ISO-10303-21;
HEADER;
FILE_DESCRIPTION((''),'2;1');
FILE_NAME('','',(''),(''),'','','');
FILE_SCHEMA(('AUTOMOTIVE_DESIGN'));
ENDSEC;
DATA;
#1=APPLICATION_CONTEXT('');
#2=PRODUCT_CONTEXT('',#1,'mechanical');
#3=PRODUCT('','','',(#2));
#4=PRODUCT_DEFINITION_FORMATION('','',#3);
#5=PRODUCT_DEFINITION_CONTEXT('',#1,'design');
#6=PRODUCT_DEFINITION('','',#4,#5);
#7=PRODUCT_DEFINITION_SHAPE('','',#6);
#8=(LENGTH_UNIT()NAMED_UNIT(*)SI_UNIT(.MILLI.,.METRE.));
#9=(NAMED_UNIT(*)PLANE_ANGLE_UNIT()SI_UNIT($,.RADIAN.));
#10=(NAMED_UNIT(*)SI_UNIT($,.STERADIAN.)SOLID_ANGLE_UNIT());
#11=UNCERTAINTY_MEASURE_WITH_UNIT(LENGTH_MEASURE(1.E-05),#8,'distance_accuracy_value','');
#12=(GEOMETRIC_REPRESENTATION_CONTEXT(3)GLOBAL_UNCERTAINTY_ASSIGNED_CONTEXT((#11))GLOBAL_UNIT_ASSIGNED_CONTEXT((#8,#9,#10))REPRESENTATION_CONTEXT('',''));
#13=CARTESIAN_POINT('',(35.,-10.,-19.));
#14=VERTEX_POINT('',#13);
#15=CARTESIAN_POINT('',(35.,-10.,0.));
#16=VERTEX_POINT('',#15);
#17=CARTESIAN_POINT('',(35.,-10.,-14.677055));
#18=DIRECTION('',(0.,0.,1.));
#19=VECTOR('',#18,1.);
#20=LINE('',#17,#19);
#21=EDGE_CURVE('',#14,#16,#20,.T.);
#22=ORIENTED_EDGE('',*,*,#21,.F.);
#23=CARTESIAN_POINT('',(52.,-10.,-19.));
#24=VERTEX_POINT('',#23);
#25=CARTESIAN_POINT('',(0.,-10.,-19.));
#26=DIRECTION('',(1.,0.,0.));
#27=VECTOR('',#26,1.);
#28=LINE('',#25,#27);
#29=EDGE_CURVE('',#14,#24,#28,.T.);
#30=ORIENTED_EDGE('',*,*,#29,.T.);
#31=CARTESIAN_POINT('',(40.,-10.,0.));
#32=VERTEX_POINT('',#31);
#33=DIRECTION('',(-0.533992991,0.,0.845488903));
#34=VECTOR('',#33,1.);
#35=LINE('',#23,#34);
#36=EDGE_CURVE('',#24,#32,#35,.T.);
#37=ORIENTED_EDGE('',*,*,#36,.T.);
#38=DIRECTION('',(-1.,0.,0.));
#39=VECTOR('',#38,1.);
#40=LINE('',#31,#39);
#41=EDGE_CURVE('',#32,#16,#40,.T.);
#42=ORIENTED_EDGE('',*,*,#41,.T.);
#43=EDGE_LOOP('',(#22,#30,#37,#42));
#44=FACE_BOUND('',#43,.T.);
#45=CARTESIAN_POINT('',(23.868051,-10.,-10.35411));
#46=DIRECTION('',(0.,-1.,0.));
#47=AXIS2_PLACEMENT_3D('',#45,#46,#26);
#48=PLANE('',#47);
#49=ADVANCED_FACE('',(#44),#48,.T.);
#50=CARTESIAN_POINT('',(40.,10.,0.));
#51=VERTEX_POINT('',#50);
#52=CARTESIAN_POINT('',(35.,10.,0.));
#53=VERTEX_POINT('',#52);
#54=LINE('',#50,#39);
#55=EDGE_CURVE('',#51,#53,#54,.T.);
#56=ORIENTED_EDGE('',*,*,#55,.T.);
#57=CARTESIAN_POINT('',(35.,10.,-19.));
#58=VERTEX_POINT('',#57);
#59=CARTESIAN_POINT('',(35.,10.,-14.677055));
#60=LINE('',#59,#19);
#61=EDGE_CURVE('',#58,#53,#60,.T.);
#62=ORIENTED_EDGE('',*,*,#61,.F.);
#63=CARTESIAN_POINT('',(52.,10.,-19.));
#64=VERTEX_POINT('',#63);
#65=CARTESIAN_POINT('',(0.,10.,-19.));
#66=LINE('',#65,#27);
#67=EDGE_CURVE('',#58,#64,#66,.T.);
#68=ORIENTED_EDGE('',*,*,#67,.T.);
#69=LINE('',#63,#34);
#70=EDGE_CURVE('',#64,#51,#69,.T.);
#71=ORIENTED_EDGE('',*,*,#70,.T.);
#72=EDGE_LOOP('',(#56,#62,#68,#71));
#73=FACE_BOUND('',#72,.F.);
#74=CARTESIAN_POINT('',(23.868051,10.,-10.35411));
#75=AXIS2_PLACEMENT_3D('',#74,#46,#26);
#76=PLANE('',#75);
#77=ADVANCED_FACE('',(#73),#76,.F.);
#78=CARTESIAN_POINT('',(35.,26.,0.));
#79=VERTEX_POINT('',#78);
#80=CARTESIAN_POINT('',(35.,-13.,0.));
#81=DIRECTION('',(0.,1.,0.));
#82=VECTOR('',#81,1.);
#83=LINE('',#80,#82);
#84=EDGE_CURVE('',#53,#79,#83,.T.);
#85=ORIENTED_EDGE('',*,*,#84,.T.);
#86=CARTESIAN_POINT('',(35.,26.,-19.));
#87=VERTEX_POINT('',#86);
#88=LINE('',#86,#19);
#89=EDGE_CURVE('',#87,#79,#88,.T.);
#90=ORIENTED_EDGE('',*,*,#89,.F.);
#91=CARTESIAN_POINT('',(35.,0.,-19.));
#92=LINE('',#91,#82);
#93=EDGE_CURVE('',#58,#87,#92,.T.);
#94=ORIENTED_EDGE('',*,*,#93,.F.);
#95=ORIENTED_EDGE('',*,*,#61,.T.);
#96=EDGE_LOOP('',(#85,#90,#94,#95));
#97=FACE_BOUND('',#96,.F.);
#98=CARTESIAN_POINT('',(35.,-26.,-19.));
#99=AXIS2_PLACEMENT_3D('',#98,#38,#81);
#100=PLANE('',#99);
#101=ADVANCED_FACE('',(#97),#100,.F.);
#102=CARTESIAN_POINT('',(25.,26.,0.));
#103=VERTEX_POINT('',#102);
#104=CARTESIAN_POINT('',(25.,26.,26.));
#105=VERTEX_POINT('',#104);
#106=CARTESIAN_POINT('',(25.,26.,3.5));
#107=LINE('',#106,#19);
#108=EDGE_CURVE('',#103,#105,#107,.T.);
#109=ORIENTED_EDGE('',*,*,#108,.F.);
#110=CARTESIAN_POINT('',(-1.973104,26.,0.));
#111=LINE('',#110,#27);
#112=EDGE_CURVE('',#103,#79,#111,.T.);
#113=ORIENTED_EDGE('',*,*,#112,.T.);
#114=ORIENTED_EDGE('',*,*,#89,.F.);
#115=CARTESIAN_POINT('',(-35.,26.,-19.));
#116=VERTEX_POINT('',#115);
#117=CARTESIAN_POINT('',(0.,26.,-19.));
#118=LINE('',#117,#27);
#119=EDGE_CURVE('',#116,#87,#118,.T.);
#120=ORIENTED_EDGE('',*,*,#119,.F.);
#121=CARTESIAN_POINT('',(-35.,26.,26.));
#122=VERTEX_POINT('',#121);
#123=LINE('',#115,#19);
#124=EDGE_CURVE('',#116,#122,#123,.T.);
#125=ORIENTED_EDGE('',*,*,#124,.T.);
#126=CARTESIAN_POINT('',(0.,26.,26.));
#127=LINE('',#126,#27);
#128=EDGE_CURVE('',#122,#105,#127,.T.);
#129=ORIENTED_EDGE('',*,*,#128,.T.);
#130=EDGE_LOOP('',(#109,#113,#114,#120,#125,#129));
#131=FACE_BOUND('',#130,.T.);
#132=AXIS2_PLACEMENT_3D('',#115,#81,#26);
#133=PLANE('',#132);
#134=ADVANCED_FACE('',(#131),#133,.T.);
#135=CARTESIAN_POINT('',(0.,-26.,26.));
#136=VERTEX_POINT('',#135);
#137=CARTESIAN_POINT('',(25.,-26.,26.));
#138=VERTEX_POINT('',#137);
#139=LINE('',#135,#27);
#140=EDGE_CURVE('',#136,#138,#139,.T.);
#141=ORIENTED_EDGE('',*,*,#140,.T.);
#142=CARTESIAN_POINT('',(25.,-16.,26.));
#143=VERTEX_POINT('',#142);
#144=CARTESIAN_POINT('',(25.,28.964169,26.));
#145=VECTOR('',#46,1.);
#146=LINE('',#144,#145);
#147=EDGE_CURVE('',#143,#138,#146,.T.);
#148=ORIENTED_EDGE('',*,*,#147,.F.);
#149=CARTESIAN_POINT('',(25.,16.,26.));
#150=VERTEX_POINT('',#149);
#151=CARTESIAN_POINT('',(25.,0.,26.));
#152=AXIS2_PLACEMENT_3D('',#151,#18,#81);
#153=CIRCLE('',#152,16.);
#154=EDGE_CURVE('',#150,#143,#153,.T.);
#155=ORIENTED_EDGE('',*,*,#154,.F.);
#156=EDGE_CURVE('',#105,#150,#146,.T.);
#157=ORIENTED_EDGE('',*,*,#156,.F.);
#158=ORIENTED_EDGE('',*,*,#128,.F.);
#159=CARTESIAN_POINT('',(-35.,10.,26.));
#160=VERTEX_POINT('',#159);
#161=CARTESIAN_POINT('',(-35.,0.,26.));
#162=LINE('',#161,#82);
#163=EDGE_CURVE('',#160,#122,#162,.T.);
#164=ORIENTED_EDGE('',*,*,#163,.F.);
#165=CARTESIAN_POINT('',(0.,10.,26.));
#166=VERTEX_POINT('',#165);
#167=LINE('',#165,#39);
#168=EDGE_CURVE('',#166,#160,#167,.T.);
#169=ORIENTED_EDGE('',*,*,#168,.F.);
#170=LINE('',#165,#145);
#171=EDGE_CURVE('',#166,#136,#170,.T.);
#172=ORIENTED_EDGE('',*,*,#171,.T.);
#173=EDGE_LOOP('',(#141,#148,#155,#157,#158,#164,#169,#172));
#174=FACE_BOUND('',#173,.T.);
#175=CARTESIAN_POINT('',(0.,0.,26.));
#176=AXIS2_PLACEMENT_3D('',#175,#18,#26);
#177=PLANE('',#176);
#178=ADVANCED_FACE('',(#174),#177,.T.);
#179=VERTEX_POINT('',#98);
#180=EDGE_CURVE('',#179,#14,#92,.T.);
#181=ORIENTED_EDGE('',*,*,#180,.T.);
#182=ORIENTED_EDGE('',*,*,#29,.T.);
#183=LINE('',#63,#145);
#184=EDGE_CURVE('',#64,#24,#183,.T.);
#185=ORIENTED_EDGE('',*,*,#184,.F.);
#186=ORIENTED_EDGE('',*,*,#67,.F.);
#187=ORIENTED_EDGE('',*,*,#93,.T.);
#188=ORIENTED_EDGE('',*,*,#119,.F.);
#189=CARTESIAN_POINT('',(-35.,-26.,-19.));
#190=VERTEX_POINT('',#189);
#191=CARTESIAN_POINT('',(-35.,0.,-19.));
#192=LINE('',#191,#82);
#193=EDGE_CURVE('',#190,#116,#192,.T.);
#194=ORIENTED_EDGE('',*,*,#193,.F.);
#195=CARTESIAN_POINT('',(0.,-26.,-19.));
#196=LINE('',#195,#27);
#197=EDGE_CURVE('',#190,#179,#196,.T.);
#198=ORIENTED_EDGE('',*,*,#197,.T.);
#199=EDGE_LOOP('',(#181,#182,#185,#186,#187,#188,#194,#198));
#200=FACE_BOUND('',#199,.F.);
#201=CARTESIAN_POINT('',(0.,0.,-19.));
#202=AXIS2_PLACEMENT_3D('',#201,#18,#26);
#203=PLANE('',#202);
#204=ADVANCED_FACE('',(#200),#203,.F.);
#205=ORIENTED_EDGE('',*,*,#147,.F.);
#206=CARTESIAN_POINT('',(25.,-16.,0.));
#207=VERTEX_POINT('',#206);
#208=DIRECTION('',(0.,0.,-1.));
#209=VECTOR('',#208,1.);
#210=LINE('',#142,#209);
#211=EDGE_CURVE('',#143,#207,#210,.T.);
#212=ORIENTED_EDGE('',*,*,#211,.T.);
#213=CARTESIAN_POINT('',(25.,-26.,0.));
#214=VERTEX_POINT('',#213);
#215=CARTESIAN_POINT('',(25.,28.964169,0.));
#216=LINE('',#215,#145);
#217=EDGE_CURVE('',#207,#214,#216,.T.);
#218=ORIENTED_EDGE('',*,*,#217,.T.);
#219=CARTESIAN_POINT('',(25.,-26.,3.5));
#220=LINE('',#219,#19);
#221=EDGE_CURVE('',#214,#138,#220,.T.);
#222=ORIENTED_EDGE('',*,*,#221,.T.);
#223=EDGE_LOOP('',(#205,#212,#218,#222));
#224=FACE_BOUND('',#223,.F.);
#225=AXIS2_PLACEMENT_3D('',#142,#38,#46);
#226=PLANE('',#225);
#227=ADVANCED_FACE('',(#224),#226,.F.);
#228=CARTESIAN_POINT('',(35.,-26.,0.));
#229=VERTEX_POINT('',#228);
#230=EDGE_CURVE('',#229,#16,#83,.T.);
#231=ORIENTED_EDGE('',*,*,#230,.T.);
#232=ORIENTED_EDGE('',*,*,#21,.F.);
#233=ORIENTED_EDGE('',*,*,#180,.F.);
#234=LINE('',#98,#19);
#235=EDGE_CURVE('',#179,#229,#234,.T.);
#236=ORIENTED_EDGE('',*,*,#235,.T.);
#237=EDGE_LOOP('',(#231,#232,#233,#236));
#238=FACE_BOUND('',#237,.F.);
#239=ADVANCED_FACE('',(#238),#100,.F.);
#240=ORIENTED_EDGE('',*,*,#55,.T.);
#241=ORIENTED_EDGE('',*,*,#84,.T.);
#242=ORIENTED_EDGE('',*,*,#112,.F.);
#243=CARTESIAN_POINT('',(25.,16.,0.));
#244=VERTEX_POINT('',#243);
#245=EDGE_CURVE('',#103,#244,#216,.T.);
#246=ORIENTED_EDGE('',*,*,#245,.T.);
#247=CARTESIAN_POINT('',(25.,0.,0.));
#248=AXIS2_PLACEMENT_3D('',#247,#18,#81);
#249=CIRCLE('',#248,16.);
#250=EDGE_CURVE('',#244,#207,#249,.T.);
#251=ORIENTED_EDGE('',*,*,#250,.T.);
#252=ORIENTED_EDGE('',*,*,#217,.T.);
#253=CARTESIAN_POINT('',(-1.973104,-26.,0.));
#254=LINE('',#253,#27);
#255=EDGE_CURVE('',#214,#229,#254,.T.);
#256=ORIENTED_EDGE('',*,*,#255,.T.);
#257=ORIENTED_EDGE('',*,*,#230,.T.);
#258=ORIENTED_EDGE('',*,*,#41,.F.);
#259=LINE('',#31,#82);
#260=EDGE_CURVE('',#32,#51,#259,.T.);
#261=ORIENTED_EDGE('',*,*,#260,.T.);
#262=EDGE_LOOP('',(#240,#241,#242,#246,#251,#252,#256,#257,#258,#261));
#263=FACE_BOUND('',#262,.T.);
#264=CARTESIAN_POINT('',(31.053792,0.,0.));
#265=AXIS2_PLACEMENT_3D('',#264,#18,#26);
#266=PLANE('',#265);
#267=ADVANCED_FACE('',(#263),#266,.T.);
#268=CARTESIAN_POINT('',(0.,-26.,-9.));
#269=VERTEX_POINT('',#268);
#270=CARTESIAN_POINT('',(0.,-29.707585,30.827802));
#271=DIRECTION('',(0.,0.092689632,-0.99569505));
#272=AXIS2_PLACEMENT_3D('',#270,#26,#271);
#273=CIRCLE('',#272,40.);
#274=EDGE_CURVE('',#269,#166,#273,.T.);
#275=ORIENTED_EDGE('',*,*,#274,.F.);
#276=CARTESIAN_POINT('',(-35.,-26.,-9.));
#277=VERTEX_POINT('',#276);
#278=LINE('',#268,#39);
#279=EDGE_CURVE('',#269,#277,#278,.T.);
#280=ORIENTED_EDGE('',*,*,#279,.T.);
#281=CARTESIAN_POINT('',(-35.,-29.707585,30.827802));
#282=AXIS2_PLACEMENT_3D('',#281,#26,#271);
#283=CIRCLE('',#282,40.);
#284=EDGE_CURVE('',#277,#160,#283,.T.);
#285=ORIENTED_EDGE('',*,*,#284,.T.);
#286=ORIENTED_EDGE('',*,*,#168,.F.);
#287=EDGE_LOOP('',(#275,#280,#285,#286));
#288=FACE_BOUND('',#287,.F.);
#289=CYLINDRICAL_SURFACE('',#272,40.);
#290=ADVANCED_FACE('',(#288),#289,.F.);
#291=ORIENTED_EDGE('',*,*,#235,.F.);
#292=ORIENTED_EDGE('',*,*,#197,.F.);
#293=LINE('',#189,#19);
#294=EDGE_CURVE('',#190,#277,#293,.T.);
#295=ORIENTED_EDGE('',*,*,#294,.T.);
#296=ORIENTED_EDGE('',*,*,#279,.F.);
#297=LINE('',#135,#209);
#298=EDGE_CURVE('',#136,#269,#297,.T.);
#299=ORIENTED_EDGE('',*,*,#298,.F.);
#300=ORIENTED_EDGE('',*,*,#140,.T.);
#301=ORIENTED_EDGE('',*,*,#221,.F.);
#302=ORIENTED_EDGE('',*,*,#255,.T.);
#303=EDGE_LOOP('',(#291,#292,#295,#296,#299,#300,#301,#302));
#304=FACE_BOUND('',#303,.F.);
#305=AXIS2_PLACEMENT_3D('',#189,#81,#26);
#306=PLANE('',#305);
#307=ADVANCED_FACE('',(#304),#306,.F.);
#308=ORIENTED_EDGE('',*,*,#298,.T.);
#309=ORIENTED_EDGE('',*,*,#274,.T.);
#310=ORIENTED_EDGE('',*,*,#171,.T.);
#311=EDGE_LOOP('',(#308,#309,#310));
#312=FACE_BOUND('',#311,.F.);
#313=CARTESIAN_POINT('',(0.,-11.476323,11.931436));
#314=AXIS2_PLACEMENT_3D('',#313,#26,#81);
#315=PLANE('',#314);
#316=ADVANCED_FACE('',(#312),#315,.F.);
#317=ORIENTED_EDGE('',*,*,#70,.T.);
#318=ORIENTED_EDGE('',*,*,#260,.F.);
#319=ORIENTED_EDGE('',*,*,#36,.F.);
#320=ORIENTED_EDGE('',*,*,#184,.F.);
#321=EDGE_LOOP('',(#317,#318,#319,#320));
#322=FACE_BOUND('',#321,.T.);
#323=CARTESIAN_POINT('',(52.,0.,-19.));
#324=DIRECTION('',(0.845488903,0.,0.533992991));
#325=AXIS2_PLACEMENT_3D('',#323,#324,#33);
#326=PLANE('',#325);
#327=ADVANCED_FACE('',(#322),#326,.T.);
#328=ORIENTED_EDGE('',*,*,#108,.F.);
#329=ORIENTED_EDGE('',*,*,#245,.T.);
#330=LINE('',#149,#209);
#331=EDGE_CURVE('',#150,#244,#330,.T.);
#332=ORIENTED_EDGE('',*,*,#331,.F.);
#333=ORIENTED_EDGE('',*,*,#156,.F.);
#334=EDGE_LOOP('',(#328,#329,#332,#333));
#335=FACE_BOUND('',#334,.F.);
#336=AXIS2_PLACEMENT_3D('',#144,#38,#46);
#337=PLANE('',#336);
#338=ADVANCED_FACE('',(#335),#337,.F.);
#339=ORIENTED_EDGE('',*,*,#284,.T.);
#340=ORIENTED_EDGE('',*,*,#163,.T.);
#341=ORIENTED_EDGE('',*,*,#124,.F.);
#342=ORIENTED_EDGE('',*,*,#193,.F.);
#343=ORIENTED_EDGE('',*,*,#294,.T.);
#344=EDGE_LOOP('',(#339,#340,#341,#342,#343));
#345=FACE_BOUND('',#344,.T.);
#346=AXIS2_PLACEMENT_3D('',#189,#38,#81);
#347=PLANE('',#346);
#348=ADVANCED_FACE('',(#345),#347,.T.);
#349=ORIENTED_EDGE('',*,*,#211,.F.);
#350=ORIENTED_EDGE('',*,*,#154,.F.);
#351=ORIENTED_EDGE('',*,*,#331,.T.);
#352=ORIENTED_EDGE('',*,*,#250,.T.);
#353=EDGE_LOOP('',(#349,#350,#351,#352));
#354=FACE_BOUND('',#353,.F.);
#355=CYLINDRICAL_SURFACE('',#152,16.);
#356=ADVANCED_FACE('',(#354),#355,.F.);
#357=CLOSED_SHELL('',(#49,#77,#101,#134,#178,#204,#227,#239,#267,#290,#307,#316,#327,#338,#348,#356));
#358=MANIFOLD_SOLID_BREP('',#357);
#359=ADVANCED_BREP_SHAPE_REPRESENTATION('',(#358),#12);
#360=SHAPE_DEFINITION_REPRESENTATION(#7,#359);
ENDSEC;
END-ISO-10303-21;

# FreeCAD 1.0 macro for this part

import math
import FreeCAD as App
import Part
import Sketcher
from FreeCAD import Vector


def add_polygon(sketch, points):
    """Adds a closed chain of lines whose ends are joined by coincident constraints."""
    first, n = sketch.GeometryCount, len(points)
    for a, b in zip(points, points[1:] + points[:1]):
        sketch.addGeometry(Part.LineSegment(App.Vector(*a, 0), App.Vector(*b, 0)), False)
    for i in range(n):
        sketch.addConstraint(Sketcher.Constraint("Coincident", first + i, 2, first + (i + 1) % n, 1))

doc = App.newDocument("Part")
body = doc.addObject("PartDesign::Body", "Body")

# Sketch on XY plane
sketch1 = doc.addObject("Sketcher::SketchObject", "Sketch")
body.addObject(sketch1)
sketch1.AttachmentSupport = (doc.XY_Plane, [""])
sketch1.MapMode = "FlatFace"
sketch1.AttachmentOffset = App.Placement(Vector(0, 0, -19), App.Rotation())
add_polygon(sketch1, [(-35, 26), (-35, -26), (35, -26), (35, 26)])  # lines 0-3
sketch1.addConstraint([
    Sketcher.Constraint("Vertical", 0),
    Sketcher.Constraint("Horizontal", 1),
    Sketcher.Constraint("Vertical", 2),
    Sketcher.Constraint("Horizontal", 3),
    Sketcher.Constraint("Symmetric", 0, 2, 2, 2, -1, 1),
    Sketcher.Constraint("DistanceX", 1, 1, 1, 2, 70.0),
    Sketcher.Constraint("DistanceY", 0, 2, 0, 1, 52.0),
])
pad1 = doc.addObject("PartDesign::Pad", "Pad")
body.addObject(pad1)
pad1.Profile = sketch1
pad1.Length = 45

# Sketch on XY plane
sketch2 = doc.addObject("Sketcher::SketchObject", "Sketch001")
body.addObject(sketch2)
sketch2.AttachmentSupport = (doc.XY_Plane, [""])
sketch2.MapMode = "FlatFace"
sketch2.AttachmentOffset = App.Placement(Vector(0, 0, 26), App.Rotation())
sketch2.addGeometry([
    Part.LineSegment(Vector(25, -30.279284, 0), Vector(53.918246, -30.279284, 0)),  # 0
    Part.LineSegment(Vector(53.918246, -30.279284, 0), Vector(53.918246, 29.17351, 0)),  # 1
    Part.LineSegment(Vector(53.918246, 29.17351, 0), Vector(25, 28.964169, 0)),  # 2
    Part.LineSegment(Vector(25, 28.964169, 0), Vector(25, 16, 0)),  # 3
    Part.ArcOfCircle(Part.Circle(Vector(25, 0, 0), Vector(0, 0, 1), 16), math.radians(90), math.radians(270)),  # 4
    Part.LineSegment(Vector(25, -16, 0), Vector(25, -30.279284, 0)),  # 5
], False)
sketch2.addConstraint([
    Sketcher.Constraint("Coincident", 0, 2, 1, 1),
    Sketcher.Constraint("Coincident", 1, 2, 2, 1),
    Sketcher.Constraint("Coincident", 2, 2, 3, 1),
    Sketcher.Constraint("Coincident", 3, 2, 4, 1),
    Sketcher.Constraint("Coincident", 4, 2, 5, 1),
    Sketcher.Constraint("Coincident", 5, 2, 0, 1),
    Sketcher.Constraint("Horizontal", 0),
    Sketcher.Constraint("Vertical", 1),
    Sketcher.Constraint("Vertical", 3),
    Sketcher.Constraint("Vertical", 5),
    Sketcher.Constraint("Symmetric", 3, 2, 4, 2, -1),
    Sketcher.Constraint("Vertical", 4, 3, 2, 2),
    Sketcher.Constraint("Radius", 4, 16.0),
    Sketcher.Constraint("DistanceX", -1, 1, 4, 3, 25.0),
    Sketcher.Constraint("DistanceY", 3, 2, 3, 1, 12.964169),
    Sketcher.Constraint("DistanceX", 0, 1, 0, 2, 28.918246),
    Sketcher.Constraint("DistanceY", 1, 1, 1, 2, 59.452794),
    Sketcher.Constraint("DistanceY", 5, 2, 5, 1, 14.279284),
])
pocket1 = doc.addObject("PartDesign::Pocket", "Pocket")
body.addObject(pocket1)
pocket1.Profile = sketch2
pocket1.Length = 26

# Sketch on YZ plane
sketch3 = doc.addObject("Sketcher::SketchObject", "Sketch002")
body.addObject(sketch3)
sketch3.AttachmentSupport = (doc.YZ_Plane, [""])
sketch3.MapMode = "FlatFace"
sketch3.addGeometry([
    Part.ArcOfCircle(Part.Circle(Vector(-29.707585, 30.827802, 0), Vector(0, 0, 1), 40), math.radians(-84.681641), math.radians(-6.932218)),
    Part.LineSegment(Vector(10, 26, 0), Vector(-26, 26, 0)),
    Part.LineSegment(Vector(-26, 26, 0), Vector(-26, -9, 0)),
], False)
sketch3.addConstraint([
    Sketcher.Constraint("Coincident", 0, 2, 1, 1),
    Sketcher.Constraint("Coincident", 1, 2, 2, 1),
    Sketcher.Constraint("Coincident", 2, 2, 0, 1),
    Sketcher.Constraint("Horizontal", 1),
    Sketcher.Constraint("Vertical", 2),
    Sketcher.Constraint("Radius", 0, 40.0),
    Sketcher.Constraint("DistanceX", 1, 2, 1, 1, 36.0),
    Sketcher.Constraint("DistanceY", 2, 2, 2, 1, 35.0),
    Sketcher.Constraint("DistanceX", -1, 1, 0, 2, 10.0),
    Sketcher.Constraint("DistanceY", -1, 1, 0, 2, 26.0),
])
pocket2 = doc.addObject("PartDesign::Pocket", "Pocket001")
body.addObject(pocket2)
pocket2.Profile = sketch3
pocket2.Type = "ThroughAll"

# Sketch on XZ plane
sketch4 = doc.addObject("Sketcher::SketchObject", "Sketch003")
body.addObject(sketch4)
sketch4.AttachmentSupport = (doc.XZ_Plane, [""])
sketch4.MapMode = "FlatFace"
add_polygon(sketch4, [(0, 0), (0, -19), (52, -19), (40, 0)])  # lines 0-3
sketch4.addConstraint([
    Sketcher.Constraint("Vertical", 0),
    Sketcher.Constraint("Horizontal", 1),
    Sketcher.Constraint("Horizontal", 3),
    Sketcher.Constraint("Coincident", 3, 2, -1, 1),
    Sketcher.Constraint("DistanceX", 1, 1, 1, 2, 52.0),
    Sketcher.Constraint("DistanceX", 3, 2, 3, 1, 40.0),
    Sketcher.Constraint("DistanceY", 0, 2, 0, 1, 19.0),
])
pad2 = doc.addObject("PartDesign::Pad", "Pad001")
body.addObject(pad2)
pad2.Profile = sketch4
pad2.Length = 20
pad2.Midplane = True

doc.recompute()
